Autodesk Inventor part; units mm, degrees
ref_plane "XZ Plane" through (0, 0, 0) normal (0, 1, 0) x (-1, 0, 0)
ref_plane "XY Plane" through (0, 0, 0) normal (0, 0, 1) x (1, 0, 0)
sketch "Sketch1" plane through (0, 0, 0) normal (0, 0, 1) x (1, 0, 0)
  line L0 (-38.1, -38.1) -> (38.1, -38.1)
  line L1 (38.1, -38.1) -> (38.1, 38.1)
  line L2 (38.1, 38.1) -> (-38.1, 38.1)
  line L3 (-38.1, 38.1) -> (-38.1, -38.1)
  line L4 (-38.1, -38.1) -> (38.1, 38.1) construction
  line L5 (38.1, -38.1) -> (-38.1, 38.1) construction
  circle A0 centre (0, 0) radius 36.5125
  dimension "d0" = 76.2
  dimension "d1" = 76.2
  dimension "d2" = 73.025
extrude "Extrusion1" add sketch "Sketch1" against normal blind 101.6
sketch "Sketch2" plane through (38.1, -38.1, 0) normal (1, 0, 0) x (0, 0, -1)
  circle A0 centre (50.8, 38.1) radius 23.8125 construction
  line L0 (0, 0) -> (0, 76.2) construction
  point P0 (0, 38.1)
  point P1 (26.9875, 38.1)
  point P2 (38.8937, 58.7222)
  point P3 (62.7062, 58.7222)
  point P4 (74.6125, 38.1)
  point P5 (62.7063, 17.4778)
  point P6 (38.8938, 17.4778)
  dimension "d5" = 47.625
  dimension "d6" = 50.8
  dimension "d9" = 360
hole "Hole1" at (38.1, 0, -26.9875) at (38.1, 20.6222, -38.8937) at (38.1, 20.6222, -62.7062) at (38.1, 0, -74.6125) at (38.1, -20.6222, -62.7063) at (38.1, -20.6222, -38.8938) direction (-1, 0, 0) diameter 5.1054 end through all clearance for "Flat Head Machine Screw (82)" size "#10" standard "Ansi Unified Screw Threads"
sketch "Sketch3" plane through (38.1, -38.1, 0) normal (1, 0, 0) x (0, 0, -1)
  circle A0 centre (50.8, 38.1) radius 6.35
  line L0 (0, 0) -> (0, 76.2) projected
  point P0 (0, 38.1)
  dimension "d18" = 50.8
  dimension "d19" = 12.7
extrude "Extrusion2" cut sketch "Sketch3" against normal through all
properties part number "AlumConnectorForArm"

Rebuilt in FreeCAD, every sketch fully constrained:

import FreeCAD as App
import Part
import Sketcher
from FreeCAD import Vector
Q = App.Units.Quantity

doc = App.newDocument("Part")
body = doc.addObject("PartDesign::Body", "Body")

# Sketch on XY plane
sketch1 = body.newObject("Sketcher::SketchObject", "Sketch")
sketch1.AttachmentSupport = (doc.getObject("XY_Plane"), [""])
sketch1.MapMode = "FlatFace"
sketch1.addGeometry([
    Part.LineSegment(Vector(-38.1, 38.1, 0), Vector(-38.1, -38.1, 0)),  # 0
    Part.LineSegment(Vector(-38.1, -38.1, 0), Vector(38.1, -38.1, 0)),  # 1
    Part.LineSegment(Vector(38.1, -38.1, 0), Vector(38.1, 38.1, 0)),  # 2
    Part.LineSegment(Vector(38.1, 38.1, 0), Vector(-38.1, 38.1, 0)),  # 3
    Part.Circle(Vector(0, 0, 0), Vector(0, 0, 1), 36.5125),  # 4
], False)
sketch1.addConstraint([
    Sketcher.Constraint("Coincident", 0, 2, 1, 1),
    Sketcher.Constraint("Coincident", 1, 2, 2, 1),
    Sketcher.Constraint("Coincident", 2, 2, 3, 1),
    Sketcher.Constraint("Coincident", 3, 2, 0, 1),
    Sketcher.Constraint("Vertical", 0),
    Sketcher.Constraint("Horizontal", 1),
    Sketcher.Constraint("Vertical", 2),
    Sketcher.Constraint("Horizontal", 3),
    Sketcher.Constraint("Coincident", 4, 3, -1, 1),
    Sketcher.Constraint("Symmetric", 0, 2, 2, 2, -1, 1),
    Sketcher.Constraint("Equal", 3, 0),
    Sketcher.Constraint("DistanceX", 1, 1, 1, 2, Q("3 in")),
    Sketcher.Constraint("Diameter", 4, Q("2.875 in")),
])
pad1 = body.newObject("PartDesign::Pad", "Pad")
pad1.Profile = sketch1
pad1.Length = Q("4 in")
pad1.Reversed = True

# Sketch on YZ plane
sketch2 = body.newObject("Sketcher::SketchObject", "Sketch001")
sketch2.AttachmentSupport = (doc.getObject("YZ_Plane"), [""])
sketch2.MapMode = "FlatFace"
sketch2.AttachmentOffset = App.Placement(Vector(0, 0, 1.5 * 25.4), App.Rotation())
sketch2.addGeometry([
    Part.Circle(Vector(0, -26.9875, 0), Vector(0, 0, 1), 2.5527),  # 0
    Part.Circle(Vector(20.6222, -38.8937, 0), Vector(0, 0, 1), 2.5527),  # 1
    Part.Circle(Vector(20.6222, -62.7062, 0), Vector(0, 0, 1), 2.5527),  # 2
    Part.Circle(Vector(0, -74.6125, 0), Vector(0, 0, 1), 2.5527),  # 3
    Part.Circle(Vector(-20.6222, -62.7063, 0), Vector(0, 0, 1), 2.5527),  # 4
    Part.Circle(Vector(-20.6222, -38.8938, 0), Vector(0, 0, 1), 2.5527),  # 5
], False)
sketch2.addConstraint([
    Sketcher.Constraint("Equal", 0, 1),
    Sketcher.Constraint("Equal", 1, 2),
    Sketcher.Constraint("Equal", 2, 3),
    Sketcher.Constraint("Equal", 3, 4),
    Sketcher.Constraint("Equal", 4, 5),
    Sketcher.Constraint("Symmetric", 2, 3, 4, 3, -2),
    Sketcher.Constraint("Symmetric", 1, 3, 5, 3, -2),
    Sketcher.Constraint("PointOnObject", 0, 3, -2),
    Sketcher.Constraint("PointOnObject", 3, 3, -2),
    Sketcher.Constraint("Vertical", 1, 3, 2, 3),
    Sketcher.Constraint("Diameter", 0, Q("0.201 in")),
    Sketcher.Constraint("DistanceY", 0, 3, -1, 1, Q("1.0625 in")),
    Sketcher.Constraint("DistanceY", 1, 3, -1, 1, Q("1.531248 in")),
    Sketcher.Constraint("DistanceY", 2, 3, -1, 1, Q("2.468748 in")),
    Sketcher.Constraint("DistanceY", 3, 3, -1, 1, Q("2.9375 in")),
    Sketcher.Constraint("DistanceX", -1, 1, 1, 3, Q("0.8119 in")),
])
doc.recompute()
hole = body.newObject("PartDesign::Hole", "Hole")
hole.Profile = sketch2
hole.ThreadType = "None"
hole.Diameter = Q("0.201 in")
hole.DepthType = "ThroughAll"

# Sketch on YZ plane
sketch3 = body.newObject("Sketcher::SketchObject", "Sketch002")
sketch3.AttachmentSupport = (doc.getObject("YZ_Plane"), [""])
sketch3.MapMode = "FlatFace"
sketch3.AttachmentOffset = App.Placement(Vector(0, 0, 1.5 * 25.4), App.Rotation())
sketch3.addGeometry(Part.Circle(Vector(0, -50.8, 0), Vector(0, 0, 1), 6.35), False)
sketch3.addConstraint([
    Sketcher.Constraint("PointOnObject", 0, 3, -2),
    Sketcher.Constraint("Diameter", 0, Q("0.5 in")),
    Sketcher.Constraint("DistanceY", 0, 3, -1, 1, Q("2 in")),
])
pocket1 = body.newObject("PartDesign::Pocket", "Pocket")
pocket1.Profile = sketch3
pocket1.Type = "ThroughAll"

doc.recompute()
